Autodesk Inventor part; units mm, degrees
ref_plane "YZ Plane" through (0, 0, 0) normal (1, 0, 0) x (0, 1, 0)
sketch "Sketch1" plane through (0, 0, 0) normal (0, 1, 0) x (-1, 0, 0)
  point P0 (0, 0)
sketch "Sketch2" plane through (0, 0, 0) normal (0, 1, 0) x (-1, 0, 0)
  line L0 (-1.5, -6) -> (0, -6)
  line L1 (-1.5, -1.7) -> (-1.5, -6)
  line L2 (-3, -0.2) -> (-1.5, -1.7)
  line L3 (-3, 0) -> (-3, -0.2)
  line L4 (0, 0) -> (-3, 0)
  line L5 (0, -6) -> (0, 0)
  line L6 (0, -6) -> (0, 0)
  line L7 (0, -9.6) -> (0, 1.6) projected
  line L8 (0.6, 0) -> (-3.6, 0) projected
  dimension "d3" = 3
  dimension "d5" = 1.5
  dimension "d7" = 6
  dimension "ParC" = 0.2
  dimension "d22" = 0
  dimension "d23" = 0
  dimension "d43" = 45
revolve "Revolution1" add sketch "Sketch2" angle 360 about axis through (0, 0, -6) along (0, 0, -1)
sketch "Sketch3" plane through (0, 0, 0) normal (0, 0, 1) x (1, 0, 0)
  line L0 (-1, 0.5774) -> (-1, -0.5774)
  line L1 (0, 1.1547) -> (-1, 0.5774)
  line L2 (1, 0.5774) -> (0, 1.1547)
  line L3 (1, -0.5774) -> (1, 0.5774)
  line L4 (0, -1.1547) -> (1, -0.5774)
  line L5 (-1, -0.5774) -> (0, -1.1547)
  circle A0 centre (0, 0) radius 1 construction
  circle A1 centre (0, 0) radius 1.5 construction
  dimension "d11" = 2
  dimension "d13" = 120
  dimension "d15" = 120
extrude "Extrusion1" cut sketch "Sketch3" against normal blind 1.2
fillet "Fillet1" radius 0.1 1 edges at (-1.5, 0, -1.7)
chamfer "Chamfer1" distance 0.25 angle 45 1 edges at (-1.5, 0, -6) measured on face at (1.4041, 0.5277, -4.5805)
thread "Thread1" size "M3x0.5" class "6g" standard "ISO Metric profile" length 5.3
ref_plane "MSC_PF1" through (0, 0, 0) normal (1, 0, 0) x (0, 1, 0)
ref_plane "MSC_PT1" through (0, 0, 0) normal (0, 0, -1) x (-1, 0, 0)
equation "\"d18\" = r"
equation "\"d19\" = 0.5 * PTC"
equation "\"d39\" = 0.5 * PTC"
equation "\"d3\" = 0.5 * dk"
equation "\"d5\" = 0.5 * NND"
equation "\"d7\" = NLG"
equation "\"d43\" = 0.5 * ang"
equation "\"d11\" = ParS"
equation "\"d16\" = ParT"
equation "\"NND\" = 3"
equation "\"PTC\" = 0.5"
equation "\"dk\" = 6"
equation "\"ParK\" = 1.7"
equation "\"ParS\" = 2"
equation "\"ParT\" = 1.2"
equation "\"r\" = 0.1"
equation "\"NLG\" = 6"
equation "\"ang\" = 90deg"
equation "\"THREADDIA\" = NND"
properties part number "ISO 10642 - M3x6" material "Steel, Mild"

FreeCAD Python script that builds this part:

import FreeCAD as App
import Part
import Sketcher
from FreeCAD import Vector
Q = App.Units.Quantity


def edges_at(feature, points):
    """Names of the edges that pass closest to the given points."""
    edges = feature.Shape.Edges
    near = lambda p: min(range(len(edges)), key=lambda i: edges[i].distToShape(Part.Vertex(*p))[0])
    return sorted({f"Edge{near(p) + 1}" for p in points})

doc = App.newDocument("Part")
body = doc.addObject("PartDesign::Body", "Body")

sketch1 = doc.addObject("Sketcher::SketchObject", "Sketch")
body.addObject(sketch1)
sketch1.AttachmentSupport = (doc.XZ_Plane, [""])
sketch1.MapMode = "FlatFace"
sketch1.addGeometry([
    Part.LineSegment(Vector(1.5, -1.7, 0), Vector(1.5, -6, 0)),
    Part.LineSegment(Vector(1.5, -6, 0), Vector(0, -6, 0)),
    Part.LineSegment(Vector(0, -6, 0), Vector(0, 0, 0)),
    Part.LineSegment(Vector(0, 0, 0), Vector(3, 0, 0)),
    Part.LineSegment(Vector(3, 0, 0), Vector(3, -0.2, 0)),
    Part.LineSegment(Vector(3, -0.2, 0), Vector(1.5, -1.7, 0)),
], False)
sketch1.addConstraint([
    Sketcher.Constraint("Coincident", 0, 2, 1, 1),
    Sketcher.Constraint("Coincident", 1, 2, 2, 1),
    Sketcher.Constraint("Coincident", 2, 2, 3, 1),
    Sketcher.Constraint("Coincident", 3, 2, 4, 1),
    Sketcher.Constraint("Coincident", 4, 2, 5, 1),
    Sketcher.Constraint("Coincident", 5, 2, 0, 1),
    Sketcher.Constraint("Vertical", 0),
    Sketcher.Constraint("Horizontal", 1),
    Sketcher.Constraint("Vertical", 2),
    Sketcher.Constraint("Horizontal", 3),
    Sketcher.Constraint("Vertical", 4),
    Sketcher.Constraint("Coincident", 2, 2, -1, 1),
    Sketcher.Constraint("DistanceX", 3, 1, 3, 2, Q("3 mm")),
    Sketcher.Constraint("DistanceY", 2, 1, 2, 2, Q("6 mm")),
    Sketcher.Constraint("DistanceX", 1, 2, 1, 1, Q("1.5 mm")),
    Sketcher.Constraint("DistanceY", 4, 2, 4, 1, Q("0.2 mm")),
    Sketcher.Constraint("DistanceY", 5, 2, 4, 2, Q("1.5 mm")),
])
revolution = doc.addObject("PartDesign::Revolution", "Revolution")
body.addObject(revolution)
revolution.Profile = sketch1
revolution.ReferenceAxis = (sketch1, ["V_Axis"])
revolution.Angle = 360

sketch2 = doc.addObject("Sketcher::SketchObject", "Sketch001")
body.addObject(sketch2)
sketch2.AttachmentSupport = (doc.XY_Plane, [""])
sketch2.MapMode = "FlatFace"
sketch2.addGeometry([
    Part.LineSegment(Vector(0, 1.2, 0), Vector(-1, 0.6, 0)),
    Part.LineSegment(Vector(-1, 0.6, 0), Vector(-1, -0.6, 0)),
    Part.LineSegment(Vector(-1, -0.6, 0), Vector(0, -1.2, 0)),
    Part.LineSegment(Vector(0, -1.2, 0), Vector(1, -0.6, 0)),
    Part.LineSegment(Vector(1, -0.6, 0), Vector(1, 0.6, 0)),
    Part.LineSegment(Vector(1, 0.6, 0), Vector(0, 1.2, 0)),
], False)
sketch2.addConstraint([
    Sketcher.Constraint("Coincident", 0, 2, 1, 1),
    Sketcher.Constraint("Coincident", 1, 2, 2, 1),
    Sketcher.Constraint("Coincident", 2, 2, 3, 1),
    Sketcher.Constraint("Coincident", 3, 2, 4, 1),
    Sketcher.Constraint("Coincident", 4, 2, 5, 1),
    Sketcher.Constraint("Coincident", 5, 2, 0, 1),
    Sketcher.Constraint("Vertical", 1),
    Sketcher.Constraint("Vertical", 4),
    Sketcher.Constraint("Symmetric", 0, 2, 3, 2, -1, 1),
    Sketcher.Constraint("Symmetric", 2, 2, 5, 2, -1, 1),
    Sketcher.Constraint("PointOnObject", 2, 2, -2),
    Sketcher.Constraint("Parallel", 2, 5),
    Sketcher.Constraint("Horizontal", 1, 2, 3, 2),
    Sketcher.Constraint("DistanceX", 1, 2, 3, 2, Q("2 mm")),
    Sketcher.Constraint("DistanceY", 1, 2, 1, 1, Q("1.1548 mm")),
    Sketcher.Constraint("DistanceY", 2, 2, 0, 2, Q("1.732 mm")),
])
pocket1 = doc.addObject("PartDesign::Pocket", "Pocket")
body.addObject(pocket1)
pocket1.Profile = sketch2
pocket1.Length = 1.2
doc.recompute()

fillet = doc.addObject("PartDesign::Fillet", "Fillet")
body.addObject(fillet)
fillet.Base = (pocket1, edges_at(pocket1, [(-1.5, 0, -1.7)]))
fillet.Radius = 0.1
doc.recompute()

chamfer = doc.addObject("PartDesign::Chamfer", "Chamfer")
body.addObject(chamfer)
chamfer.Base = (fillet, edges_at(fillet, [(-1.5, 0, -6)]))
chamfer.Size = 0.25

doc.recompute()
